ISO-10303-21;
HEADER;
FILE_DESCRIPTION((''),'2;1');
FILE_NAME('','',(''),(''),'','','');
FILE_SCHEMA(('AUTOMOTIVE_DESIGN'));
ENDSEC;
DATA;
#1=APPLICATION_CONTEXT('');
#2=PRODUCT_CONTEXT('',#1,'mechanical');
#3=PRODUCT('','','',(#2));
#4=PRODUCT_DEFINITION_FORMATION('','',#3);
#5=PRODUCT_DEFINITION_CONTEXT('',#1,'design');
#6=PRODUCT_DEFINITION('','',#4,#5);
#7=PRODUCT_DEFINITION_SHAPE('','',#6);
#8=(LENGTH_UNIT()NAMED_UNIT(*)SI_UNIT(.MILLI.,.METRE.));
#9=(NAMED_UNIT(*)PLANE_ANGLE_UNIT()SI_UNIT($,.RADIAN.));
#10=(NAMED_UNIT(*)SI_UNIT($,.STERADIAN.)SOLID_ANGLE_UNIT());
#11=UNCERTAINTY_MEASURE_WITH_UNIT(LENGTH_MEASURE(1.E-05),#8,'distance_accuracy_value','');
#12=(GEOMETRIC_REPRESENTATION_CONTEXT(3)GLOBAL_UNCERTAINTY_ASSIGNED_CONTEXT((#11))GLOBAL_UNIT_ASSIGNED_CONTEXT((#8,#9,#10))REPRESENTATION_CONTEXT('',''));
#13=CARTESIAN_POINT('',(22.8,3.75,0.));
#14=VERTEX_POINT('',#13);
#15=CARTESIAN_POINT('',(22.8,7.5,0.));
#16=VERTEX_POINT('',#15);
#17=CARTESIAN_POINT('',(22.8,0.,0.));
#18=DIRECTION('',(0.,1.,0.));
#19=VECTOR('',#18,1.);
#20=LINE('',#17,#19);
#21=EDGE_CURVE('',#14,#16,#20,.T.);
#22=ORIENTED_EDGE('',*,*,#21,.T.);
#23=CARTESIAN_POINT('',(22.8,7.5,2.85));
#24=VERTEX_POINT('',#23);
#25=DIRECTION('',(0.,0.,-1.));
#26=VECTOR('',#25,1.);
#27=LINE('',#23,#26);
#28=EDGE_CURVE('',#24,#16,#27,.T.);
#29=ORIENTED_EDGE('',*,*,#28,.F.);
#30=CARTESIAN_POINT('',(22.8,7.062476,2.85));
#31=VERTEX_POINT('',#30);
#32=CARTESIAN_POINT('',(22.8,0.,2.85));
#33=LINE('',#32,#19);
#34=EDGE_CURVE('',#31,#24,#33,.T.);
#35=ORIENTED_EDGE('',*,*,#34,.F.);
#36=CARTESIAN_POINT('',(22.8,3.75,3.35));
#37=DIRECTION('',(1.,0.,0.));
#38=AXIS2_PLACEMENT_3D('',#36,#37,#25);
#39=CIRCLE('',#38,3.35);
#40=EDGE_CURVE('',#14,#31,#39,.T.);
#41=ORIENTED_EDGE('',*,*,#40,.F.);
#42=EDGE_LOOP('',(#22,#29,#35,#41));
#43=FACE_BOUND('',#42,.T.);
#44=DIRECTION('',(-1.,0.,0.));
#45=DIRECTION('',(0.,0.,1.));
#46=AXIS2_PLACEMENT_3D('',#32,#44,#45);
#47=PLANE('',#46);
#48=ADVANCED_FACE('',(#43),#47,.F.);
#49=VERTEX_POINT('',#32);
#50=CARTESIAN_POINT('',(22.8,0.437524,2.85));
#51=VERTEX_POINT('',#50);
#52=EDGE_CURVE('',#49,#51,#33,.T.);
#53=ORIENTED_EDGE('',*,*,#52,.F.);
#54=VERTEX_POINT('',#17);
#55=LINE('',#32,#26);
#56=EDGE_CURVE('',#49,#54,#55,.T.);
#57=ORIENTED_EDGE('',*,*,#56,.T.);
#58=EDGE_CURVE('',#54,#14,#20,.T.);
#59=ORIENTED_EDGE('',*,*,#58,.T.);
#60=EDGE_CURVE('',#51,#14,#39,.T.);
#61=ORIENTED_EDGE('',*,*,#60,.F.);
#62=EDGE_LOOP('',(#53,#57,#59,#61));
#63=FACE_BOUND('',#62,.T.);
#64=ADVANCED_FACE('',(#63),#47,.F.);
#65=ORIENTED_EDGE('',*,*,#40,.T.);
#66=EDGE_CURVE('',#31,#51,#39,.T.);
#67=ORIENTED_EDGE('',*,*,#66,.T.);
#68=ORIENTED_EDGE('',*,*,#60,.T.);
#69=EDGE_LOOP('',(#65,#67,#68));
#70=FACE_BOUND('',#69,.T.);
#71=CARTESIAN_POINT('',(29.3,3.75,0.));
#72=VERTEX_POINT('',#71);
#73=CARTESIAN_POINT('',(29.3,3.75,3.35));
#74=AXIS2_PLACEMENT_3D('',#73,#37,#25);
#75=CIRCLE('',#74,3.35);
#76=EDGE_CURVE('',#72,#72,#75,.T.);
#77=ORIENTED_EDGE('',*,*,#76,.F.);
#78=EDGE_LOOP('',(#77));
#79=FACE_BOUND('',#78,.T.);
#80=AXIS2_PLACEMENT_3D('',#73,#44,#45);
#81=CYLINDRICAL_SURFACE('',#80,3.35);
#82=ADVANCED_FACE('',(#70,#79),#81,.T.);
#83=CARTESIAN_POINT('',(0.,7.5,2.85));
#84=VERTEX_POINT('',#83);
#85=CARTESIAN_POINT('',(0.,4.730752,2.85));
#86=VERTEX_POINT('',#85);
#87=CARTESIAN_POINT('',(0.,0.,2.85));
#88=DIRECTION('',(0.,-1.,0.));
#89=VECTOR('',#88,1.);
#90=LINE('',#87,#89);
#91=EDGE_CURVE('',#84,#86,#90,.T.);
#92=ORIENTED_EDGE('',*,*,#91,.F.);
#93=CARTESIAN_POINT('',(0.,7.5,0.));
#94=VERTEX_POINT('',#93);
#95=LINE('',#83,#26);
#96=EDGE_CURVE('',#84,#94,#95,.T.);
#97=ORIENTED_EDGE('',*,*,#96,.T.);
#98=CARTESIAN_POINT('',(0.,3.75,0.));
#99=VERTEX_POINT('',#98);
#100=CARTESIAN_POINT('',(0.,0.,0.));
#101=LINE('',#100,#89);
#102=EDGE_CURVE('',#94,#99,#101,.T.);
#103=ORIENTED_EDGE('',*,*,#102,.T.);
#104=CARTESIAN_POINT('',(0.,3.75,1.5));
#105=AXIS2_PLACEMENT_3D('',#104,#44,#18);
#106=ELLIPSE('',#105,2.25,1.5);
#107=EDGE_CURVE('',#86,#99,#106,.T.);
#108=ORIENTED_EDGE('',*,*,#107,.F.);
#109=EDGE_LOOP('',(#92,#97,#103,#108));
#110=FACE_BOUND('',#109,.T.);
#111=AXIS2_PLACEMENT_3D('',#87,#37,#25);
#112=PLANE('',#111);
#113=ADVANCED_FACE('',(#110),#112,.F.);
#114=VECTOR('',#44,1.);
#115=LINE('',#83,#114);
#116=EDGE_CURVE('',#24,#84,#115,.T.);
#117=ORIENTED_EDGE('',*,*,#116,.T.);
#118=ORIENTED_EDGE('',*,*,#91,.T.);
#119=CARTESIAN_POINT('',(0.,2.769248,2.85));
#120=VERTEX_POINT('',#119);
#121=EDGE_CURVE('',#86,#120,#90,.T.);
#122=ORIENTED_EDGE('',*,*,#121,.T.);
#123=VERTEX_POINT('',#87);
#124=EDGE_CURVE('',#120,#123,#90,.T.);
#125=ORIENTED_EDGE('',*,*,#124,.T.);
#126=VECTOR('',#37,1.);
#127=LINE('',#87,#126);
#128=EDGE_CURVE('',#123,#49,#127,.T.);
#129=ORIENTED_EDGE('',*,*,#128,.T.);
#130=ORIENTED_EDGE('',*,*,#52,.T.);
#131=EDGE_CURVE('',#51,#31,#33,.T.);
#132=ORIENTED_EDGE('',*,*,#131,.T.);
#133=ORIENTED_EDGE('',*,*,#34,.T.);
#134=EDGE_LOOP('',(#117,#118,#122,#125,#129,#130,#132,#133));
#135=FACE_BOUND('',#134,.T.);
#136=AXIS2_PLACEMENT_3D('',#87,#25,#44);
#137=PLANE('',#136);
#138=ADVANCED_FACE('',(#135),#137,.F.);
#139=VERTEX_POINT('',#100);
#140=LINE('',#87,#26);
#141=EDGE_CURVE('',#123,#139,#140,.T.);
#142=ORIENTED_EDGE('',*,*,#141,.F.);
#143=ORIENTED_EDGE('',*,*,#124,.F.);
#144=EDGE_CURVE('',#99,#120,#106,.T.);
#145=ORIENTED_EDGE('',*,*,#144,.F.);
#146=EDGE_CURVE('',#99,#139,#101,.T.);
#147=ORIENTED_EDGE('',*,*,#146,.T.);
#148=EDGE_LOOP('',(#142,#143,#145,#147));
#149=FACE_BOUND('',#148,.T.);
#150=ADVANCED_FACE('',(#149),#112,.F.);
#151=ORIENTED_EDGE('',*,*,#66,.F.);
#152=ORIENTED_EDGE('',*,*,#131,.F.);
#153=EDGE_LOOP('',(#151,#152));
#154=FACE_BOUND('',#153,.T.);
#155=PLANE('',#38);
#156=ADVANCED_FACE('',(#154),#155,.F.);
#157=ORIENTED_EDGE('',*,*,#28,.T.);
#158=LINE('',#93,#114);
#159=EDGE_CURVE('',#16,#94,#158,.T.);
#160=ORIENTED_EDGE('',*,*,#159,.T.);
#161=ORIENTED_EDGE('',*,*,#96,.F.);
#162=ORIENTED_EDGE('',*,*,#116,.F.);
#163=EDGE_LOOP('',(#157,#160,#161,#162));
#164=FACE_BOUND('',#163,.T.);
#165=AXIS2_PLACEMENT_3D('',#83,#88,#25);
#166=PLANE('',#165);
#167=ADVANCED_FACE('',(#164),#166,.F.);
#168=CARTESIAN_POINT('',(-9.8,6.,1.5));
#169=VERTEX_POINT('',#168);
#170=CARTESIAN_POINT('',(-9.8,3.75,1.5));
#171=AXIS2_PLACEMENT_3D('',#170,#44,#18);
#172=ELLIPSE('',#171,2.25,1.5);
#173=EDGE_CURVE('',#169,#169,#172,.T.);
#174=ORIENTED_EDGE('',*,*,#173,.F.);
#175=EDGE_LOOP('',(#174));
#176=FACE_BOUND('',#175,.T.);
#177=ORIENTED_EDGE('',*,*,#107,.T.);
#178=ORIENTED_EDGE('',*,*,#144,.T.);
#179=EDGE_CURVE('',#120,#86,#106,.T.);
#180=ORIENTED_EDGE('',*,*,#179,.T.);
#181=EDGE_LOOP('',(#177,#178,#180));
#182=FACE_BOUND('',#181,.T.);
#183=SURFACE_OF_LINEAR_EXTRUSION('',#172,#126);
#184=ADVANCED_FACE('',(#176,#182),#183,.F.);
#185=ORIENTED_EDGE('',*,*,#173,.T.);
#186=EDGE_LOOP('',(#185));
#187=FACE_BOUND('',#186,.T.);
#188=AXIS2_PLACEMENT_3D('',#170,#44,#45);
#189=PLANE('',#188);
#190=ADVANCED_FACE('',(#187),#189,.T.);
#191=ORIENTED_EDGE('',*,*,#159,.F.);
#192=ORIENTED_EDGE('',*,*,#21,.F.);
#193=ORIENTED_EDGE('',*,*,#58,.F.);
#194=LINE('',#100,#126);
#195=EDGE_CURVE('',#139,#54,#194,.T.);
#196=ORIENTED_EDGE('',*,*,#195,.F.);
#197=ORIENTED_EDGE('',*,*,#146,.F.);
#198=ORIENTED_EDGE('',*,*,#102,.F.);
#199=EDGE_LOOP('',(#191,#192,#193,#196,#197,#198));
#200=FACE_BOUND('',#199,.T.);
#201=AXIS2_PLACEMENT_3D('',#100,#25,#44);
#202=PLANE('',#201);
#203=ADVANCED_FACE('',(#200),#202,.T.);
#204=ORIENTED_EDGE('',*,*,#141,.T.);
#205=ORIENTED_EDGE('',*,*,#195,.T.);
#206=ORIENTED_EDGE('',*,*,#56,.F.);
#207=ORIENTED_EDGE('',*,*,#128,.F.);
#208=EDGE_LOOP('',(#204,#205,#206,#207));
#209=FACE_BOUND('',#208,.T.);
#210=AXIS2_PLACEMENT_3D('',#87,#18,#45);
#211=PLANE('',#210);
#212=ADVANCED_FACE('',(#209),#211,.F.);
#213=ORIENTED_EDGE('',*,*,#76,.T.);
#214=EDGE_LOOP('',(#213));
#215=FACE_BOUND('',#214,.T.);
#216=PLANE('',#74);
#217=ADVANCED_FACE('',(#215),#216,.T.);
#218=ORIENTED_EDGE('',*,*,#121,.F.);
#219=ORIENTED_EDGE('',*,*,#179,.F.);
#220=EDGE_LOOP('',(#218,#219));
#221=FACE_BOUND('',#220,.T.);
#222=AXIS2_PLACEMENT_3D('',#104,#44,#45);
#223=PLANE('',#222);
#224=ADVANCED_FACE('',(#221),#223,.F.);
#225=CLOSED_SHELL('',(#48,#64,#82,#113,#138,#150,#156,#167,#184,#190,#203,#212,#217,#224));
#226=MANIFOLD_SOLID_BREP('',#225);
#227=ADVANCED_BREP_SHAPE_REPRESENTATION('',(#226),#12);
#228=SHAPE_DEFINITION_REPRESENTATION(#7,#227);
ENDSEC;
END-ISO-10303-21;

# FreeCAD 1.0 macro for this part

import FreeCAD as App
import Part
import Sketcher

doc = App.newDocument("Part")
body = doc.addObject("PartDesign::Body", "Body")

sketch1 = doc.addObject("Sketcher::SketchObject", "Sketch")
body.addObject(sketch1)
sketch1.AttachmentSupport = (doc.XY_Plane, [""])
sketch1.MapMode = "FlatFace"
sketch1.addGeometry(Part.LineSegment(App.Vector(0, 8, 0), App.Vector(0, 0, 0)), False)
sketch1.addGeometry(Part.LineSegment(App.Vector(0, 0, 0), App.Vector(23, 0, 0)), False)
sketch1.addGeometry(Part.LineSegment(App.Vector(23, 0, 0), App.Vector(23, 8, 0)), False)
sketch1.addGeometry(Part.LineSegment(App.Vector(23, 8, 0), App.Vector(0, 8, 0)), False)
sketch1.addConstraint(Sketcher.Constraint("Coincident", 0, 2, 1, 1))
sketch1.addConstraint(Sketcher.Constraint("Coincident", 1, 2, 2, 1))
sketch1.addConstraint(Sketcher.Constraint("Coincident", 2, 2, 3, 1))
sketch1.addConstraint(Sketcher.Constraint("Coincident", 3, 2, 0, 1))
sketch1.addConstraint(Sketcher.Constraint("Vertical", 0))
sketch1.addConstraint(Sketcher.Constraint("Horizontal", 1))
sketch1.addConstraint(Sketcher.Constraint("Vertical", 2))
sketch1.addConstraint(Sketcher.Constraint("Horizontal", 3))
sketch1.addConstraint(Sketcher.Constraint("Coincident", 0, 2, -1, 1))
sketch1.addConstraint(Sketcher.Constraint("DistanceX", 1, 1, 1, 2, 22.8))
sketch1.addConstraint(Sketcher.Constraint("DistanceY", 0, 2, 0, 1, 7.5))
pad1 = doc.addObject("PartDesign::Pad", "Pad")
body.addObject(pad1)
pad1.Profile = sketch1
pad1.Length = 2.85

sketch2 = doc.addObject("Sketcher::SketchObject", "Sketch001")
body.addObject(sketch2)
sketch2.AttachmentSupport = (doc.YZ_Plane, [""])
sketch2.MapMode = "FlatFace"
sketch2.AttachmentOffset = App.Placement(App.Vector(0, 0, 22.8), App.Rotation())
sketch2.addGeometry(Part.Circle(App.Vector(3.8, 3.4, 0), App.Vector(0, 0, 1), 3.4), False)
sketch2.addConstraint(Sketcher.Constraint("Diameter", 0, 6.7))
sketch2.addConstraint(Sketcher.Constraint("DistanceX", -1, 1, 0, 3, 3.75))
sketch2.addConstraint(Sketcher.Constraint("DistanceY", -1, 1, 0, 3, 3.35))
pad2 = doc.addObject("PartDesign::Pad", "Pad001")
body.addObject(pad2)
pad2.Profile = sketch2
pad2.Length = 6.5

sketch3 = doc.addObject("Sketcher::SketchObject", "Sketch002")
body.addObject(sketch3)
sketch3.AttachmentSupport = (doc.YZ_Plane, [""])
sketch3.MapMode = "FlatFace"
sketch3.addGeometry(Part.Ellipse(App.Vector(6, 1.5, 0), App.Vector(3.75, 3, 0), App.Vector(3.75, 1.5, 0)), False)
sketch3.addConstraint(Sketcher.Constraint("Block", 0))
pad3 = doc.addObject("PartDesign::Pad", "Pad002")
body.addObject(pad3)
pad3.Profile = sketch3
pad3.Length = 9.8
pad3.Reversed = True

doc.recompute()
